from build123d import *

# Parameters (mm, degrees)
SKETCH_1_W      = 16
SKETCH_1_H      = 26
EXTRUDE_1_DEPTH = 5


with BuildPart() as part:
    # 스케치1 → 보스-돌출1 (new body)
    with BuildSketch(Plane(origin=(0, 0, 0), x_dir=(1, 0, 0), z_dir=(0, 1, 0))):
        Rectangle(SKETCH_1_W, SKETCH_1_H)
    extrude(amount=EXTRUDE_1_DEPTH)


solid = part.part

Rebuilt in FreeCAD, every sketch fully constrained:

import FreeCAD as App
import Part
import Sketcher

V = App.Vector

doc = App.newDocument("Part")
body = doc.addObject("PartDesign::Body", "Body")

sketch1 = body.newObject("Sketcher::SketchObject", "Sketch")
sketch1.AttachmentSupport = (doc.getObject("XZ_Plane"), [""])
sketch1.MapMode = "FlatFace"
sketch1.addGeometry(Part.LineSegment(V(-8, -13, 0), V(-8, 13, 0)), False)
sketch1.addGeometry(Part.LineSegment(V(-8, 13, 0), V(8, 13, 0)), False)
sketch1.addGeometry(Part.LineSegment(V(8, 13, 0), V(8, -13, 0)), False)
sketch1.addGeometry(Part.LineSegment(V(8, -13, 0), V(-8, -13, 0)), False)
sketch1.addConstraint(Sketcher.Constraint("Coincident", 0, 2, 1, 1))
sketch1.addConstraint(Sketcher.Constraint("Coincident", 1, 2, 2, 1))
sketch1.addConstraint(Sketcher.Constraint("Coincident", 2, 2, 3, 1))
sketch1.addConstraint(Sketcher.Constraint("Coincident", 3, 2, 0, 1))
sketch1.addConstraint(Sketcher.Constraint("Vertical", 0))
sketch1.addConstraint(Sketcher.Constraint("Horizontal", 1))
sketch1.addConstraint(Sketcher.Constraint("Vertical", 2))
sketch1.addConstraint(Sketcher.Constraint("Horizontal", 3))
sketch1.addConstraint(Sketcher.Constraint("Symmetric", 0, 2, 2, 2, -1, 1))
sketch1.addConstraint(Sketcher.Constraint("DistanceX", 1, 1, 1, 2, 16.0))
sketch1.addConstraint(Sketcher.Constraint("DistanceY", 0, 1, 0, 2, 26.0))
pad1 = body.newObject("PartDesign::Pad", "Pad")
pad1.Profile = sketch1
pad1.Length = 5
pad1.Reversed = True

doc.recompute()
